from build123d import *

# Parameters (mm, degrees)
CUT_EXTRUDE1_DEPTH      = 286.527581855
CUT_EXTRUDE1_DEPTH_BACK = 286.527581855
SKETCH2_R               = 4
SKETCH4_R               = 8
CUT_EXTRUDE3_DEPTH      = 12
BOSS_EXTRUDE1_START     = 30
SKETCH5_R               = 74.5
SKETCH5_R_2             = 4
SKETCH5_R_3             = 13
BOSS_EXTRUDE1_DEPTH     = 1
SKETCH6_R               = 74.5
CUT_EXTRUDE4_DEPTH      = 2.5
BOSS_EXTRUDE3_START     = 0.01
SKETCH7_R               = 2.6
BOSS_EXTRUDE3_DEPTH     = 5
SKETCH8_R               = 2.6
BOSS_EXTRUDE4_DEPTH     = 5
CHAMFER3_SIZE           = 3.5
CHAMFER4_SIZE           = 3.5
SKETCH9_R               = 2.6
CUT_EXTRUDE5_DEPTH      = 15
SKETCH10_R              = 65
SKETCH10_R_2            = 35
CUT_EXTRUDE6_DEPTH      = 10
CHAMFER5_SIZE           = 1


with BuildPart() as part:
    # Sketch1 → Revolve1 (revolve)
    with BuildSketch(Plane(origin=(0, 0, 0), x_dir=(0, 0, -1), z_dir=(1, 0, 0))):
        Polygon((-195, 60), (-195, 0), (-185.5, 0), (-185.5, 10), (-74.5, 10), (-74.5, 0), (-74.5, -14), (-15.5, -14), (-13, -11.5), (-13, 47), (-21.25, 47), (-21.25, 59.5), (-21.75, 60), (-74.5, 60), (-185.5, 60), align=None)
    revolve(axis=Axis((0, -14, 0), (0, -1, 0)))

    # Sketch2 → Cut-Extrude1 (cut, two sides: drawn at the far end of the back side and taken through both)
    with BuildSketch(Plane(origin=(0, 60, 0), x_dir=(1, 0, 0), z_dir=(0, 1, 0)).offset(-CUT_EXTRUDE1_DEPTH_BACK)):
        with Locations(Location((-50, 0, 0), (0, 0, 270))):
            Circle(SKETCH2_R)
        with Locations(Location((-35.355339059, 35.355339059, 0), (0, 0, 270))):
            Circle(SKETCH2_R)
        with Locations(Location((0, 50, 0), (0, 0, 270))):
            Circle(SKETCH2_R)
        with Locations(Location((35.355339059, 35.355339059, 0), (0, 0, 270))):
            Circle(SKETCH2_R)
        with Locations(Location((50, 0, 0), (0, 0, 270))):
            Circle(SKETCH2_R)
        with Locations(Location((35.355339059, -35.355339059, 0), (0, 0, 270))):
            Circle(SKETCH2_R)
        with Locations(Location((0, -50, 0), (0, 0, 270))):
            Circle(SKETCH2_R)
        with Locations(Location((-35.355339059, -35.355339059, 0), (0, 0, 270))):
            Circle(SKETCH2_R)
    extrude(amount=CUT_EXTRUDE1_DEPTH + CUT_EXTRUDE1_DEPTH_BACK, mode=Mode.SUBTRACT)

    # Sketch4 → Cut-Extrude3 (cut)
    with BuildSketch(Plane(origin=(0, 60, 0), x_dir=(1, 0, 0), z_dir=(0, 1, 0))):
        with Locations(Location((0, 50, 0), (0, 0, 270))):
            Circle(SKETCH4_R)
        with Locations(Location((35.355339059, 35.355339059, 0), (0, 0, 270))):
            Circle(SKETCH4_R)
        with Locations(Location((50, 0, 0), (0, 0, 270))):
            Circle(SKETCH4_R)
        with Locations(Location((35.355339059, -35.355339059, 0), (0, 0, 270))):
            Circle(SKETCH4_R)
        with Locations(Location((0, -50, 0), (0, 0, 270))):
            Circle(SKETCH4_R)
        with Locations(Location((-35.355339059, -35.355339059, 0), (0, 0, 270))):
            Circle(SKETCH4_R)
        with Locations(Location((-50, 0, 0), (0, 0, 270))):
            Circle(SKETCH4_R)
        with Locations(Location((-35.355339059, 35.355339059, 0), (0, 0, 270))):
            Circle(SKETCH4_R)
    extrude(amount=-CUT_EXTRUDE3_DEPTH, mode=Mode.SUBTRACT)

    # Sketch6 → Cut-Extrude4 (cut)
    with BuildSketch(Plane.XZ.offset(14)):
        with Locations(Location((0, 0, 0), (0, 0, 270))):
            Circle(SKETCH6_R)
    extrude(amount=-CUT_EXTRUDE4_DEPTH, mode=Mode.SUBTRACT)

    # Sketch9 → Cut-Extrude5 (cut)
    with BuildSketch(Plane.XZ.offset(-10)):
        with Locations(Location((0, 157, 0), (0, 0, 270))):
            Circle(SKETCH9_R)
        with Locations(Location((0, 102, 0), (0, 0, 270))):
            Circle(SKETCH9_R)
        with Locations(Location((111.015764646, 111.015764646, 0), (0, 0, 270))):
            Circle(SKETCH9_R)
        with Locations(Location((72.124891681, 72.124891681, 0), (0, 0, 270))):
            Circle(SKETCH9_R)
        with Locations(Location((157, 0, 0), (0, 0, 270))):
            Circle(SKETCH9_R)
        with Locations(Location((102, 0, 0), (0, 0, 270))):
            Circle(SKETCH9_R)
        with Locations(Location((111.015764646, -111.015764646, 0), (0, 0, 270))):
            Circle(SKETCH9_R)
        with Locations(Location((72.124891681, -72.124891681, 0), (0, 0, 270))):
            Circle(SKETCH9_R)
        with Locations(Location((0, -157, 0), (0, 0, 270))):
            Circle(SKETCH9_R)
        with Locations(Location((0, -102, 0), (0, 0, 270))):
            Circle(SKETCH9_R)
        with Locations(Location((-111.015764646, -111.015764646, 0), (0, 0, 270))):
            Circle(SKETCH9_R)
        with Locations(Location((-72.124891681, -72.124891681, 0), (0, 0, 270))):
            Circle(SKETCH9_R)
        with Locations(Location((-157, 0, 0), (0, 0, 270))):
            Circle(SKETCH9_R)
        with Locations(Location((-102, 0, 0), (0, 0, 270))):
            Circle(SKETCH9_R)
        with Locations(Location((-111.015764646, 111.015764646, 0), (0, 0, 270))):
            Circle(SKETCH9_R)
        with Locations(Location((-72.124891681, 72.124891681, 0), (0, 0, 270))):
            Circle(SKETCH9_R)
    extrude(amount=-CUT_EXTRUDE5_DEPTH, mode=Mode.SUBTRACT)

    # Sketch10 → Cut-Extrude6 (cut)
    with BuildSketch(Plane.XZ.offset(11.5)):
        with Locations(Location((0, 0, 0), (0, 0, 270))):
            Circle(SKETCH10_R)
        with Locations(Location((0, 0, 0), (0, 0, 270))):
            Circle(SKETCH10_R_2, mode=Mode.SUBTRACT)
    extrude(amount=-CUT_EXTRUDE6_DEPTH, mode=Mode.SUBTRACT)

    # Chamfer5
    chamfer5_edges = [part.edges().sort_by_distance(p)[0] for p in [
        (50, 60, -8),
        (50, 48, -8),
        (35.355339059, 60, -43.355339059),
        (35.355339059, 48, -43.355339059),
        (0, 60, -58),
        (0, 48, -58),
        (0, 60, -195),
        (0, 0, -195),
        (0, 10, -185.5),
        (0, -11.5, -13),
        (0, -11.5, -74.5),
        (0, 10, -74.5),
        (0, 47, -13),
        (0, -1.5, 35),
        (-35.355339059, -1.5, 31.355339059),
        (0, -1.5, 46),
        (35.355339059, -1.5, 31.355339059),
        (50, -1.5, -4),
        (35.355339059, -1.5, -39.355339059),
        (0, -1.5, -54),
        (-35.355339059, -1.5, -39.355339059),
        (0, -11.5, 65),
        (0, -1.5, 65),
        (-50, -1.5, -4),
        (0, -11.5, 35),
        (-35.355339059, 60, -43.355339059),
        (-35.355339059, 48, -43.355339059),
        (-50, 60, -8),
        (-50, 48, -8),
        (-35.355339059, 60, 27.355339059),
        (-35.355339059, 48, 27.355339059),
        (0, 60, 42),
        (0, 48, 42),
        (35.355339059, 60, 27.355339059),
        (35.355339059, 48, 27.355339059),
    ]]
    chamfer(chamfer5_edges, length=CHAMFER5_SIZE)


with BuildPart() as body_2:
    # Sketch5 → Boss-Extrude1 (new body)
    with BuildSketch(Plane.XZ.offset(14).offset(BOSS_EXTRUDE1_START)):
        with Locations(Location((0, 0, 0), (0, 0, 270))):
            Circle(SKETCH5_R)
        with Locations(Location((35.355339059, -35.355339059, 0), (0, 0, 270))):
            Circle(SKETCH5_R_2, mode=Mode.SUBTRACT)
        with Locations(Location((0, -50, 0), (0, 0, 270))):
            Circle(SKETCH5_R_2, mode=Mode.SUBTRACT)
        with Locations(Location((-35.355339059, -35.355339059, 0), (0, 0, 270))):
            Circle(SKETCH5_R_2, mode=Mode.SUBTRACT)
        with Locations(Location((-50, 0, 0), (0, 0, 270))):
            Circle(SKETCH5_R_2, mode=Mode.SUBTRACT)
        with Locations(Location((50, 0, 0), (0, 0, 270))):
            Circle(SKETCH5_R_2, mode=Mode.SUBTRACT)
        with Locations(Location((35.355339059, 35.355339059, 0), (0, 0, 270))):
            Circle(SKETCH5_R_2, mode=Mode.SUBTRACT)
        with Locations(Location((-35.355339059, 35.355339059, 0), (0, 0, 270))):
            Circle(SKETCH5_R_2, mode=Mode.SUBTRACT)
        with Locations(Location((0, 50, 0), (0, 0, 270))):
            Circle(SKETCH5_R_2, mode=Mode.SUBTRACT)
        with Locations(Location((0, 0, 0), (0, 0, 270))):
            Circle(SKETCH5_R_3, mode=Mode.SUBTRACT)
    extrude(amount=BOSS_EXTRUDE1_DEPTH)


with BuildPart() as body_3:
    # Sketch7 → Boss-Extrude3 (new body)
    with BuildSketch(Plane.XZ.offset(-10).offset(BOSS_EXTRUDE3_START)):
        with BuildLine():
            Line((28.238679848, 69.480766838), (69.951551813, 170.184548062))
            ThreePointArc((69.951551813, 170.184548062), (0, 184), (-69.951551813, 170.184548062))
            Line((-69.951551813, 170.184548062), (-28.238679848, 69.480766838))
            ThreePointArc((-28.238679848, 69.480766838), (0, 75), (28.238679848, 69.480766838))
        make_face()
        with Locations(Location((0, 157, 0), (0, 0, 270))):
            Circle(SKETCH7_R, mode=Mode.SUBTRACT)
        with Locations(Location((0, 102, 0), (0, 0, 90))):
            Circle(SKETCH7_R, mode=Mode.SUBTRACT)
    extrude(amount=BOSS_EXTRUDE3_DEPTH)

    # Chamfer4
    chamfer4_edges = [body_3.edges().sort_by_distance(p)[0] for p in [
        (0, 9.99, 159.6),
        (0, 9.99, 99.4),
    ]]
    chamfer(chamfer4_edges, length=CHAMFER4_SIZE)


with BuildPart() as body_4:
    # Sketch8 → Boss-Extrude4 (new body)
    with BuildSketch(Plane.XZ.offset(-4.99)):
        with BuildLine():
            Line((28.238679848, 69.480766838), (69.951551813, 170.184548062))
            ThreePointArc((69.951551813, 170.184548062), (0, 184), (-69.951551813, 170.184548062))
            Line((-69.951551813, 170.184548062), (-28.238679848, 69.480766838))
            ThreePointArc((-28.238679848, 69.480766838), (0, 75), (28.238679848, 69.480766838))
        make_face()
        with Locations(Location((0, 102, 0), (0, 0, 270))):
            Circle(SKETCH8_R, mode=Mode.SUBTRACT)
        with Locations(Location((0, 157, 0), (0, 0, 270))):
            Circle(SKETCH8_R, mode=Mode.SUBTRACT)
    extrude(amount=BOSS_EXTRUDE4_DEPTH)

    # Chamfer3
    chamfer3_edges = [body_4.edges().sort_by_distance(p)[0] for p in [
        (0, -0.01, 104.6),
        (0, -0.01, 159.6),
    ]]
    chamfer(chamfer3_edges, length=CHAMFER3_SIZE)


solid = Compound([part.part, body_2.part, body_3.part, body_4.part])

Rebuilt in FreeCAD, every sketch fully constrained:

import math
import FreeCAD as App
import Part
import Sketcher
Q = App.Units.Quantity


def edges_at(feature, points):
    """Names of the edges that pass closest to the given points."""
    edges = feature.Shape.Edges
    near = lambda p: min(range(len(edges)), key=lambda i: edges[i].distToShape(Part.Vertex(*p))[0])
    return sorted({f"Edge{near(p) + 1}" for p in points})


def add_polygon(sketch, points):
    """Adds a closed chain of lines whose ends are joined by coincident constraints."""
    first, n = sketch.GeometryCount, len(points)
    for a, b in zip(points, points[1:] + points[:1]):
        sketch.addGeometry(Part.LineSegment(App.Vector(*a, 0), App.Vector(*b, 0)), False)
    for i in range(n):
        sketch.addConstraint(Sketcher.Constraint("Coincident", first + i, 2, first + (i + 1) % n, 1))

doc = App.newDocument("Part")
body = doc.addObject("PartDesign::Body", "Body")

# Sketch on YZ plane
sketch1 = body.newObject("Sketcher::SketchObject", "Sketch")
sketch1.AttachmentSupport = (doc.getObject("YZ_Plane"), [""])
sketch1.MapMode = "FlatFace"
add_polygon(sketch1, [(60, 195), (0, 195), (0, 185.5), (10, 185.5), (10, 74.5), (-14, 74.5), (-14, 15.5), (-11.5, 13), (47, 13), (47, 21.25), (59.5, 21.25), (60, 21.75)])  # lines 0-11
sketch1.addConstraint(Sketcher.Constraint("Horizontal", 0))
sketch1.addConstraint(Sketcher.Constraint("Vertical", 1))
sketch1.addConstraint(Sketcher.Constraint("Horizontal", 2))
sketch1.addConstraint(Sketcher.Constraint("Vertical", 3))
sketch1.addConstraint(Sketcher.Constraint("Horizontal", 4))
sketch1.addConstraint(Sketcher.Constraint("Vertical", 5))
sketch1.addConstraint(Sketcher.Constraint("Horizontal", 7))
sketch1.addConstraint(Sketcher.Constraint("Vertical", 8))
sketch1.addConstraint(Sketcher.Constraint("Horizontal", 9))
sketch1.addConstraint(Sketcher.Constraint("Vertical", 11))
sketch1.addConstraint(Sketcher.Constraint("PointOnObject", 0, 2, -2))
sketch1.addConstraint(Sketcher.Constraint("Perpendicular", 6, 10))
sketch1.addConstraint(Sketcher.Constraint("DistanceX", 0, 2, 0, 1, 60.0))
sketch1.addConstraint(Sketcher.Constraint("DistanceX", 2, 1, 2, 2, 10.0))
sketch1.addConstraint(Sketcher.Constraint("DistanceX", 4, 2, 4, 1, 24.0))
sketch1.addConstraint(Sketcher.Constraint("DistanceY", 3, 2, 3, 1, 111.0))
sketch1.addConstraint(Sketcher.Constraint("DistanceY", 5, 2, 5, 1, 59.0))
sketch1.addConstraint(Sketcher.Constraint("Angle", 6, Q("-45 deg")))
sketch1.addConstraint(Sketcher.Constraint("DistanceX", 7, 1, 7, 2, 58.5))
sketch1.addConstraint(Sketcher.Constraint("DistanceX", 9, 1, 9, 2, 12.5))
sketch1.addConstraint(Sketcher.Constraint("DistanceY", 1, 2, 1, 1, 9.5))
sketch1.addConstraint(Sketcher.Constraint("DistanceY", -1, 1, 0, 2, 195.0))
sketch1.addConstraint(Sketcher.Constraint("DistanceY", -1, 1, 6, 2, 13.0))
sketch1.addConstraint(Sketcher.Constraint("DistanceY", 8, 1, 8, 2, 8.25))
revolution = body.newObject("PartDesign::Revolution", "Revolution")
revolution.Profile = sketch1
revolution.ReferenceAxis = (sketch1, ["H_Axis"])
revolution.Angle = 360

# Sketch on XZ plane
sketch2 = body.newObject("Sketcher::SketchObject", "Sketch001")
sketch2.AttachmentSupport = (doc.getObject("XZ_Plane"), [""])
sketch2.MapMode = "FlatFace"
sketch2.AttachmentOffset = App.Placement(App.Vector(0, 0, -60), App.Rotation())
sketch2.addGeometry(Part.Circle(App.Vector(-50, 0, 0), App.Vector(0, 0, 1), 4), False)
sketch2.addGeometry(Part.Circle(App.Vector(-35.355339, -35.355339, 0), App.Vector(0, 0, 1), 4), False)
sketch2.addGeometry(Part.Circle(App.Vector(0, -50, 0), App.Vector(0, 0, 1), 4), False)
sketch2.addGeometry(Part.Circle(App.Vector(35.355339, -35.355339, 0), App.Vector(0, 0, 1), 4), False)
sketch2.addGeometry(Part.Circle(App.Vector(50, 0, 0), App.Vector(0, 0, 1), 4), False)
sketch2.addGeometry(Part.Circle(App.Vector(35.355339, 35.355339, 0), App.Vector(0, 0, 1), 4), False)
sketch2.addGeometry(Part.Circle(App.Vector(0, 50, 0), App.Vector(0, 0, 1), 4), False)
sketch2.addGeometry(Part.Circle(App.Vector(-35.355339, 35.355339, 0), App.Vector(0, 0, 1), 4), False)
sketch2.addConstraint(Sketcher.Constraint("Equal", 0, 1))
sketch2.addConstraint(Sketcher.Constraint("Equal", 1, 2))
sketch2.addConstraint(Sketcher.Constraint("Equal", 2, 3))
sketch2.addConstraint(Sketcher.Constraint("Equal", 3, 4))
sketch2.addConstraint(Sketcher.Constraint("Equal", 4, 5))
sketch2.addConstraint(Sketcher.Constraint("Equal", 5, 6))
sketch2.addConstraint(Sketcher.Constraint("Equal", 6, 7))
sketch2.addConstraint(Sketcher.Constraint("Symmetric", 0, 3, 4, 3, -1, 1))
sketch2.addConstraint(Sketcher.Constraint("Symmetric", 1, 3, 5, 3, -1, 1))
sketch2.addConstraint(Sketcher.Constraint("Symmetric", 2, 3, 6, 3, -1, 1))
sketch2.addConstraint(Sketcher.Constraint("Symmetric", 3, 3, 7, 3, -1, 1))
sketch2.addConstraint(Sketcher.Constraint("Symmetric", 1, 3, 3, 3, -2))
sketch2.addConstraint(Sketcher.Constraint("PointOnObject", 0, 3, -1))
sketch2.addConstraint(Sketcher.Constraint("PointOnObject", 2, 3, -2))
sketch2.addConstraint(Sketcher.Constraint("Diameter", 0, 8.0))
sketch2.addConstraint(Sketcher.Constraint("DistanceX", 0, 3, -1, 1, 50.0))
sketch2.addConstraint(Sketcher.Constraint("DistanceY", 2, 3, -1, 1, 50.0))
sketch2.addConstraint(Sketcher.Constraint("DistanceX", 1, 3, -1, 1, 35.355339))
sketch2.addConstraint(Sketcher.Constraint("DistanceY", 1, 3, -1, 1, 35.355339))
pocket1 = body.newObject("PartDesign::Pocket", "Pocket")
pocket1.Profile = sketch2
pocket1.Type = "ThroughAll"
pocket1.Midplane = True

# Sketch on XZ plane
sketch3 = body.newObject("Sketcher::SketchObject", "Sketch002")
sketch3.AttachmentSupport = (doc.getObject("XZ_Plane"), [""])
sketch3.MapMode = "FlatFace"
sketch3.AttachmentOffset = App.Placement(App.Vector(0, 0, -60), App.Rotation())
sketch3.addGeometry(Part.Circle(App.Vector(0, -50, 0), App.Vector(0, 0, 1), 8), False)
sketch3.addGeometry(Part.Circle(App.Vector(35.355339, -35.355339, 0), App.Vector(0, 0, 1), 8), False)
sketch3.addGeometry(Part.Circle(App.Vector(50, 0, 0), App.Vector(0, 0, 1), 8), False)
sketch3.addGeometry(Part.Circle(App.Vector(35.355339, 35.355339, 0), App.Vector(0, 0, 1), 8), False)
sketch3.addGeometry(Part.Circle(App.Vector(0, 50, 0), App.Vector(0, 0, 1), 8), False)
sketch3.addGeometry(Part.Circle(App.Vector(-35.355339, 35.355339, 0), App.Vector(0, 0, 1), 8), False)
sketch3.addGeometry(Part.Circle(App.Vector(-50, 0, 0), App.Vector(0, 0, 1), 8), False)
sketch3.addGeometry(Part.Circle(App.Vector(-35.355339, -35.355339, 0), App.Vector(0, 0, 1), 8), False)
sketch3.addConstraint(Sketcher.Constraint("Equal", 0, 1))
sketch3.addConstraint(Sketcher.Constraint("Equal", 1, 2))
sketch3.addConstraint(Sketcher.Constraint("Equal", 2, 3))
sketch3.addConstraint(Sketcher.Constraint("Equal", 3, 4))
sketch3.addConstraint(Sketcher.Constraint("Equal", 4, 5))
sketch3.addConstraint(Sketcher.Constraint("Equal", 5, 6))
sketch3.addConstraint(Sketcher.Constraint("Equal", 6, 7))
sketch3.addConstraint(Sketcher.Constraint("Symmetric", 0, 3, 4, 3, -1, 1))
sketch3.addConstraint(Sketcher.Constraint("Symmetric", 1, 3, 5, 3, -1, 1))
sketch3.addConstraint(Sketcher.Constraint("Symmetric", 2, 3, 6, 3, -1, 1))
sketch3.addConstraint(Sketcher.Constraint("Symmetric", 3, 3, 7, 3, -1, 1))
sketch3.addConstraint(Sketcher.Constraint("Symmetric", 3, 3, 5, 3, -2))
sketch3.addConstraint(Sketcher.Constraint("PointOnObject", 0, 3, -2))
sketch3.addConstraint(Sketcher.Constraint("PointOnObject", 2, 3, -1))
sketch3.addConstraint(Sketcher.Constraint("Diameter", 0, 16.0))
sketch3.addConstraint(Sketcher.Constraint("DistanceY", 0, 3, -1, 1, 50.0))
sketch3.addConstraint(Sketcher.Constraint("DistanceX", -1, 1, 2, 3, 50.0))
sketch3.addConstraint(Sketcher.Constraint("DistanceX", -1, 1, 1, 3, 35.355339))
sketch3.addConstraint(Sketcher.Constraint("DistanceY", 1, 3, -1, 1, 35.355339))
pocket2 = body.newObject("PartDesign::Pocket", "Pocket001")
pocket2.Profile = sketch3
pocket2.Length = 12
pocket2.Reversed = True

# Sketch on XZ plane
sketch4 = body.newObject("Sketcher::SketchObject", "Sketch003")
sketch4.AttachmentSupport = (doc.getObject("XZ_Plane"), [""])
sketch4.MapMode = "FlatFace"
sketch4.AttachmentOffset = App.Placement(App.Vector(0, 0, 14), App.Rotation())
sketch4.addGeometry(Part.Circle(App.Vector(0, 0, 0), App.Vector(0, 0, 1), 74.5), False)
sketch4.addConstraint(Sketcher.Constraint("Coincident", 0, 3, -1, 1))
sketch4.addConstraint(Sketcher.Constraint("Diameter", 0, 149.0))
pocket3 = body.newObject("PartDesign::Pocket", "Pocket002")
pocket3.Profile = sketch4
pocket3.Length = 2.5

# Sketch on XZ plane
sketch5 = body.newObject("Sketcher::SketchObject", "Sketch004")
sketch5.AttachmentSupport = (doc.getObject("XZ_Plane"), [""])
sketch5.MapMode = "FlatFace"
sketch5.AttachmentOffset = App.Placement(App.Vector(0, 0, -10), App.Rotation())
sketch5.addGeometry(Part.Circle(App.Vector(0, 157, 0), App.Vector(0, 0, 1), 2.6), False)
sketch5.addGeometry(Part.Circle(App.Vector(0, 102, 0), App.Vector(0, 0, 1), 2.6), False)
sketch5.addGeometry(Part.Circle(App.Vector(111.015765, 111.015765, 0), App.Vector(0, 0, 1), 2.6), False)
sketch5.addGeometry(Part.Circle(App.Vector(72.124892, 72.124892, 0), App.Vector(0, 0, 1), 2.6), False)
sketch5.addGeometry(Part.Circle(App.Vector(157, 0, 0), App.Vector(0, 0, 1), 2.6), False)
sketch5.addGeometry(Part.Circle(App.Vector(102, 0, 0), App.Vector(0, 0, 1), 2.6), False)
sketch5.addGeometry(Part.Circle(App.Vector(111.015765, -111.015765, 0), App.Vector(0, 0, 1), 2.6), False)
sketch5.addGeometry(Part.Circle(App.Vector(72.124892, -72.124892, 0), App.Vector(0, 0, 1), 2.6), False)
sketch5.addGeometry(Part.Circle(App.Vector(0, -157, 0), App.Vector(0, 0, 1), 2.6), False)
sketch5.addGeometry(Part.Circle(App.Vector(0, -102, 0), App.Vector(0, 0, 1), 2.6), False)
sketch5.addGeometry(Part.Circle(App.Vector(-111.015765, -111.015765, 0), App.Vector(0, 0, 1), 2.6), False)
sketch5.addGeometry(Part.Circle(App.Vector(-72.124892, -72.124892, 0), App.Vector(0, 0, 1), 2.6), False)
sketch5.addGeometry(Part.Circle(App.Vector(-157, 0, 0), App.Vector(0, 0, 1), 2.6), False)
sketch5.addGeometry(Part.Circle(App.Vector(-102, 0, 0), App.Vector(0, 0, 1), 2.6), False)
sketch5.addGeometry(Part.Circle(App.Vector(-111.015765, 111.015765, 0), App.Vector(0, 0, 1), 2.6), False)
sketch5.addGeometry(Part.Circle(App.Vector(-72.124892, 72.124892, 0), App.Vector(0, 0, 1), 2.6), False)
sketch5.addConstraint(Sketcher.Constraint("Equal", 0, 1))
sketch5.addConstraint(Sketcher.Constraint("Equal", 1, 2))
sketch5.addConstraint(Sketcher.Constraint("Equal", 2, 3))
sketch5.addConstraint(Sketcher.Constraint("Equal", 3, 4))
sketch5.addConstraint(Sketcher.Constraint("Equal", 4, 5))
sketch5.addConstraint(Sketcher.Constraint("Equal", 5, 6))
sketch5.addConstraint(Sketcher.Constraint("Equal", 6, 7))
sketch5.addConstraint(Sketcher.Constraint("Equal", 7, 8))
sketch5.addConstraint(Sketcher.Constraint("Equal", 8, 9))
sketch5.addConstraint(Sketcher.Constraint("Equal", 9, 10))
sketch5.addConstraint(Sketcher.Constraint("Equal", 10, 11))
sketch5.addConstraint(Sketcher.Constraint("Equal", 11, 12))
sketch5.addConstraint(Sketcher.Constraint("Equal", 12, 13))
sketch5.addConstraint(Sketcher.Constraint("Equal", 13, 14))
sketch5.addConstraint(Sketcher.Constraint("Equal", 14, 15))
sketch5.addConstraint(Sketcher.Constraint("Symmetric", 0, 3, 8, 3, -1, 1))
sketch5.addConstraint(Sketcher.Constraint("Symmetric", 1, 3, 9, 3, -1, 1))
sketch5.addConstraint(Sketcher.Constraint("Symmetric", 2, 3, 10, 3, -1, 1))
sketch5.addConstraint(Sketcher.Constraint("Symmetric", 3, 3, 11, 3, -1, 1))
sketch5.addConstraint(Sketcher.Constraint("Symmetric", 4, 3, 12, 3, -1, 1))
sketch5.addConstraint(Sketcher.Constraint("Symmetric", 5, 3, 13, 3, -1, 1))
sketch5.addConstraint(Sketcher.Constraint("Symmetric", 6, 3, 14, 3, -1, 1))
sketch5.addConstraint(Sketcher.Constraint("Symmetric", 7, 3, 15, 3, -1, 1))
sketch5.addConstraint(Sketcher.Constraint("Symmetric", 6, 3, 10, 3, -2))
sketch5.addConstraint(Sketcher.Constraint("Symmetric", 7, 3, 11, 3, -2))
sketch5.addConstraint(Sketcher.Constraint("PointOnObject", 0, 3, -2))
sketch5.addConstraint(Sketcher.Constraint("PointOnObject", 1, 3, -2))
sketch5.addConstraint(Sketcher.Constraint("PointOnObject", 4, 3, -1))
sketch5.addConstraint(Sketcher.Constraint("PointOnObject", 5, 3, -1))
sketch5.addConstraint(Sketcher.Constraint("Diameter", 0, 5.2))
sketch5.addConstraint(Sketcher.Constraint("DistanceY", -1, 1, 0, 3, 157.0))
sketch5.addConstraint(Sketcher.Constraint("DistanceY", -1, 1, 1, 3, 102.0))
sketch5.addConstraint(Sketcher.Constraint("DistanceX", -1, 1, 4, 3, 157.0))
sketch5.addConstraint(Sketcher.Constraint("DistanceX", -1, 1, 5, 3, 102.0))
sketch5.addConstraint(Sketcher.Constraint("DistanceX", -1, 1, 3, 3, 72.124892))
sketch5.addConstraint(Sketcher.Constraint("DistanceY", -1, 1, 3, 3, 72.124892))
sketch5.addConstraint(Sketcher.Constraint("DistanceY", 6, 3, 2, 3, 222.031529))
sketch5.addConstraint(Sketcher.Constraint("DistanceX", 10, 3, 6, 3, 222.031529))
pocket4 = body.newObject("PartDesign::Pocket", "Pocket003")
pocket4.Profile = sketch5
pocket4.Length = 15

# Sketch on XZ plane
sketch6 = body.newObject("Sketcher::SketchObject", "Sketch005")
sketch6.AttachmentSupport = (doc.getObject("XZ_Plane"), [""])
sketch6.MapMode = "FlatFace"
sketch6.AttachmentOffset = App.Placement(App.Vector(0, 0, 11.5), App.Rotation())
sketch6.addGeometry(Part.Circle(App.Vector(0, 0, 0), App.Vector(0, 0, 1), 65), False)
sketch6.addGeometry(Part.Circle(App.Vector(0, 0, 0), App.Vector(0, 0, 1), 35), False)
sketch6.addConstraint(Sketcher.Constraint("Coincident", 0, 3, -1, 1))
sketch6.addConstraint(Sketcher.Constraint("Coincident", 1, 3, -1, 1))
sketch6.addConstraint(Sketcher.Constraint("Diameter", 0, 130.0))
sketch6.addConstraint(Sketcher.Constraint("Diameter", 1, 70.0))
pocket5 = body.newObject("PartDesign::Pocket", "Pocket004")
pocket5.Profile = sketch6
pocket5.Length = 10
doc.recompute()

chamfer = body.newObject("PartDesign::Chamfer", "Chamfer")
chamfer.Base = (pocket5, edges_at(pocket5, [
    (50, 60, -8),
    (50, 48, -8),
    (35.355, 60, -43.355),
    (35.355, 48, -43.355),
    (0, 60, -58),
    (0, 48, -58),
    (0, 60, -195),
    (0, 0, -195),
    (0, 10, -185.5),
    (0, -11.5, -13),
    (0, -11.5, -74.5),
    (0, 10, -74.5),
    (0, 47, -13),
    (0, -1.5, 35),
    (-35.355, -1.5, 31.355),
    (0, -1.5, 46),
    (35.355, -1.5, 31.355),
    (50, -1.5, -4),
    (35.355, -1.5, -39.355),
    (0, -1.5, -54),
    (-35.355, -1.5, -39.355),
    (0, -11.5, 65),
    (0, -1.5, 65),
    (-50, -1.5, -4),
    (0, -11.5, 35),
    (-35.355, 60, -43.355),
    (-35.355, 48, -43.355),
    (-50, 60, -8),
    (-50, 48, -8),
    (-35.355, 60, 27.355),
    (-35.355, 48, 27.355),
    (0, 60, 42),
    (0, 48, 42),
    (35.355, 60, 27.355),
    (35.355, 48, 27.355),
]))
chamfer.Size = 1
body2 = doc.addObject("PartDesign::Body", "Body001")

# Sketch on XZ plane
sketch7 = body2.newObject("Sketcher::SketchObject", "Sketch006")
sketch7.AttachmentSupport = (doc.getObject("XZ_Plane001"), [""])
sketch7.MapMode = "FlatFace"
sketch7.AttachmentOffset = App.Placement(App.Vector(0, 0, 44), App.Rotation())
sketch7.addGeometry(Part.Circle(App.Vector(0, 0, 0), App.Vector(0, 0, 1), 74.5), False)
sketch7.addGeometry(Part.Circle(App.Vector(-35.355339, 35.355339, 0), App.Vector(0, 0, 1), 4), False)
sketch7.addGeometry(Part.Circle(App.Vector(0, 50, 0), App.Vector(0, 0, 1), 4), False)
sketch7.addGeometry(Part.Circle(App.Vector(-50, 0, 0), App.Vector(0, 0, 1), 4), False)
sketch7.addGeometry(Part.Circle(App.Vector(-35.355339, -35.355339, 0), App.Vector(0, 0, 1), 4), False)
sketch7.addGeometry(Part.Circle(App.Vector(35.355339, 35.355339, 0), App.Vector(0, 0, 1), 4), False)
sketch7.addGeometry(Part.Circle(App.Vector(50, 0, 0), App.Vector(0, 0, 1), 4), False)
sketch7.addGeometry(Part.Circle(App.Vector(0, 0, 0), App.Vector(0, 0, 1), 13), False)
sketch7.addGeometry(Part.Circle(App.Vector(0, -50, 0), App.Vector(0, 0, 1), 4), False)
sketch7.addGeometry(Part.Circle(App.Vector(35.355339, -35.355339, 0), App.Vector(0, 0, 1), 4), False)
sketch7.addConstraint(Sketcher.Constraint("Coincident", 0, 3, -1, 1))
sketch7.addConstraint(Sketcher.Constraint("Coincident", 7, 3, -1, 1))
sketch7.addConstraint(Sketcher.Constraint("Equal", 1, 2))
sketch7.addConstraint(Sketcher.Constraint("Equal", 2, 3))
sketch7.addConstraint(Sketcher.Constraint("Equal", 3, 4))
sketch7.addConstraint(Sketcher.Constraint("Equal", 4, 5))
sketch7.addConstraint(Sketcher.Constraint("Equal", 5, 6))
sketch7.addConstraint(Sketcher.Constraint("Equal", 6, 8))
sketch7.addConstraint(Sketcher.Constraint("Equal", 8, 9))
sketch7.addConstraint(Sketcher.Constraint("Symmetric", 4, 3, 5, 3, -1, 1))
sketch7.addConstraint(Sketcher.Constraint("Symmetric", 3, 3, 6, 3, -1, 1))
sketch7.addConstraint(Sketcher.Constraint("Symmetric", 2, 3, 8, 3, -1, 1))
sketch7.addConstraint(Sketcher.Constraint("Symmetric", 1, 3, 9, 3, -1, 1))
sketch7.addConstraint(Sketcher.Constraint("Symmetric", 1, 3, 5, 3, -2))
sketch7.addConstraint(Sketcher.Constraint("PointOnObject", 2, 3, -2))
sketch7.addConstraint(Sketcher.Constraint("PointOnObject", 3, 3, -1))
sketch7.addConstraint(Sketcher.Constraint("Diameter", 0, 149.0))
sketch7.addConstraint(Sketcher.Constraint("Diameter", 1, 8.0))
sketch7.addConstraint(Sketcher.Constraint("Diameter", 7, 26.0))
sketch7.addConstraint(Sketcher.Constraint("DistanceY", -1, 1, 2, 3, 50.0))
sketch7.addConstraint(Sketcher.Constraint("DistanceX", 3, 3, -1, 1, 50.0))
sketch7.addConstraint(Sketcher.Constraint("DistanceX", 1, 3, -1, 1, 35.355339))
sketch7.addConstraint(Sketcher.Constraint("DistanceY", -1, 1, 1, 3, 35.355339))
pad1 = body2.newObject("PartDesign::Pad", "Pad")
pad1.Profile = sketch7
pad1.Length = 1
body3 = doc.addObject("PartDesign::Body", "Body002")

# Sketch on XZ plane
sketch8 = body3.newObject("Sketcher::SketchObject", "Sketch007")
sketch8.AttachmentSupport = (doc.getObject("XZ_Plane002"), [""])
sketch8.MapMode = "FlatFace"
sketch8.AttachmentOffset = App.Placement(App.Vector(0, 0, -9.99), App.Rotation())
sketch8.addGeometry(Part.LineSegment(App.Vector(28.23868, 69.480767, 0), App.Vector(69.951552, 170.184548, 0)), False)
sketch8.addGeometry(Part.ArcOfCircle(Part.Circle(App.Vector(0, 0, 0), App.Vector(0, 0, 1), 184), math.radians(67.655695), math.radians(112.344305)), False)
sketch8.addGeometry(Part.LineSegment(App.Vector(-69.951552, 170.184548, 0), App.Vector(-28.23868, 69.480767, 0)), False)
sketch8.addGeometry(Part.ArcOfCircle(Part.Circle(App.Vector(0, 0, 0), App.Vector(0, 0, 1), 75), math.radians(67.881975), math.radians(112.118025)), False)
sketch8.addGeometry(Part.Circle(App.Vector(0, 102, 0), App.Vector(0, 0, 1), 2.6), False)
sketch8.addGeometry(Part.Circle(App.Vector(0, 157, 0), App.Vector(0, 0, 1), 2.6), False)
sketch8.addConstraint(Sketcher.Constraint("Coincident", 0, 2, 1, 1))
sketch8.addConstraint(Sketcher.Constraint("Coincident", 1, 2, 2, 1))
sketch8.addConstraint(Sketcher.Constraint("Coincident", 2, 2, 3, 2))
sketch8.addConstraint(Sketcher.Constraint("Coincident", 3, 1, 0, 1))
sketch8.addConstraint(Sketcher.Constraint("Coincident", 1, 3, -1, 1))
sketch8.addConstraint(Sketcher.Constraint("Coincident", 3, 3, -1, 1))
sketch8.addConstraint(Sketcher.Constraint("Equal", 4, 5))
sketch8.addConstraint(Sketcher.Constraint("PointOnObject", 4, 3, -2))
sketch8.addConstraint(Sketcher.Constraint("PointOnObject", 5, 3, -2))
sketch8.addConstraint(Sketcher.Constraint("Horizontal", 0, 2, 1, 2))
sketch8.addConstraint(Sketcher.Constraint("Horizontal", 2, 2, 3, 1))
sketch8.addConstraint(Sketcher.Constraint("Radius", 1, 184.0))
sketch8.addConstraint(Sketcher.Constraint("Radius", 3, 75.0))
sketch8.addConstraint(Sketcher.Constraint("Diameter", 4, 5.2))
sketch8.addConstraint(Sketcher.Constraint("DistanceY", -1, 1, 4, 3, 102.0))
sketch8.addConstraint(Sketcher.Constraint("DistanceY", -1, 1, 5, 3, 157.0))
sketch8.addConstraint(Sketcher.Constraint("Angle", 0, Q("67.5 deg")))
sketch8.addConstraint(Sketcher.Constraint("DistanceX", -1, 1, 0, 2, 69.951552))
pad2 = body3.newObject("PartDesign::Pad", "Pad001")
pad2.Profile = sketch8
pad2.Length = 5
doc.recompute()

chamfer2 = body3.newObject("PartDesign::Chamfer", "Chamfer001")
chamfer2.Base = (pad2, edges_at(pad2, [(0, 9.99, 159.6), (0, 9.99, 99.4)]))
chamfer2.Size = 3.5
body4 = doc.addObject("PartDesign::Body", "Body003")

# Sketch on XZ plane
sketch9 = body4.newObject("Sketcher::SketchObject", "Sketch008")
sketch9.AttachmentSupport = (doc.getObject("XZ_Plane003"), [""])
sketch9.MapMode = "FlatFace"
sketch9.AttachmentOffset = App.Placement(App.Vector(0, 0, -4.99), App.Rotation())
sketch9.addGeometry(Part.LineSegment(App.Vector(28.23868, 69.480767, 0), App.Vector(69.951552, 170.184548, 0)), False)
sketch9.addGeometry(Part.ArcOfCircle(Part.Circle(App.Vector(0, 0, 0), App.Vector(0, 0, 1), 184), math.radians(67.655695), math.radians(112.344305)), False)
sketch9.addGeometry(Part.LineSegment(App.Vector(-69.951552, 170.184548, 0), App.Vector(-28.23868, 69.480767, 0)), False)
sketch9.addGeometry(Part.ArcOfCircle(Part.Circle(App.Vector(0, 0, 0), App.Vector(0, 0, 1), 75), math.radians(67.881975), math.radians(112.118025)), False)
sketch9.addGeometry(Part.Circle(App.Vector(0, 102, 0), App.Vector(0, 0, 1), 2.6), False)
sketch9.addGeometry(Part.Circle(App.Vector(0, 157, 0), App.Vector(0, 0, 1), 2.6), False)
sketch9.addConstraint(Sketcher.Constraint("Coincident", 0, 2, 1, 1))
sketch9.addConstraint(Sketcher.Constraint("Coincident", 1, 2, 2, 1))
sketch9.addConstraint(Sketcher.Constraint("Coincident", 2, 2, 3, 2))
sketch9.addConstraint(Sketcher.Constraint("Coincident", 3, 1, 0, 1))
sketch9.addConstraint(Sketcher.Constraint("Coincident", 1, 3, -1, 1))
sketch9.addConstraint(Sketcher.Constraint("Coincident", 3, 3, -1, 1))
sketch9.addConstraint(Sketcher.Constraint("Equal", 4, 5))
sketch9.addConstraint(Sketcher.Constraint("PointOnObject", 4, 3, -2))
sketch9.addConstraint(Sketcher.Constraint("PointOnObject", 5, 3, -2))
sketch9.addConstraint(Sketcher.Constraint("Horizontal", 0, 2, 1, 2))
sketch9.addConstraint(Sketcher.Constraint("Horizontal", 2, 2, 3, 1))
sketch9.addConstraint(Sketcher.Constraint("Radius", 1, 184.0))
sketch9.addConstraint(Sketcher.Constraint("Radius", 3, 75.0))
sketch9.addConstraint(Sketcher.Constraint("Diameter", 4, 5.2))
sketch9.addConstraint(Sketcher.Constraint("DistanceY", -1, 1, 4, 3, 102.0))
sketch9.addConstraint(Sketcher.Constraint("DistanceY", -1, 1, 5, 3, 157.0))
sketch9.addConstraint(Sketcher.Constraint("Angle", 0, Q("67.5 deg")))
sketch9.addConstraint(Sketcher.Constraint("DistanceX", -1, 1, 0, 2, 69.951552))
pad3 = body4.newObject("PartDesign::Pad", "Pad002")
pad3.Profile = sketch9
pad3.Length = 5
doc.recompute()

chamfer3 = body4.newObject("PartDesign::Chamfer", "Chamfer002")
chamfer3.Base = (pad3, edges_at(pad3, [(0, -0.01, 104.6), (0, -0.01, 159.6)]))
chamfer3.Size = 3.5

doc.recompute()
